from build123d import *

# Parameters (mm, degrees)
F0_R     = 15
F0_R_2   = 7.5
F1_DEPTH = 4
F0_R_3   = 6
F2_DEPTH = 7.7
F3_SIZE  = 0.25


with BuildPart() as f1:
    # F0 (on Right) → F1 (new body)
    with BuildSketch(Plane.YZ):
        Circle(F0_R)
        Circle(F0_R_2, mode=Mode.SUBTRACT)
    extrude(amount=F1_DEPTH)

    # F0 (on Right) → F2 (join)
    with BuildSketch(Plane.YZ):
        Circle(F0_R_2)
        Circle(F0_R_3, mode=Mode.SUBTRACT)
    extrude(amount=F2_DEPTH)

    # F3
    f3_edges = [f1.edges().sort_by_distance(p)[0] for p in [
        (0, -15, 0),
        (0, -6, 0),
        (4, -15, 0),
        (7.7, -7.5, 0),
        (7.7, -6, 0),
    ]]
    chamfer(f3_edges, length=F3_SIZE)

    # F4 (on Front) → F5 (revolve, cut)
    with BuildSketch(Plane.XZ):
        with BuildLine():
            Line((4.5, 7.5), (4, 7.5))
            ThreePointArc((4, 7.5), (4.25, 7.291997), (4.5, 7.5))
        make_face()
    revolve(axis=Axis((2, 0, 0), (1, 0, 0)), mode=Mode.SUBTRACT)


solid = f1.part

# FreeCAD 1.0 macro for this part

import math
import FreeCAD as App
import Part
import Sketcher
from FreeCAD import Vector
Q = App.Units.Quantity


def edges_at(feature, points):
    """Names of the edges that pass closest to the given points."""
    edges = feature.Shape.Edges
    near = lambda p: min(range(len(edges)), key=lambda i: edges[i].distToShape(Part.Vertex(*p))[0])
    return sorted({f"Edge{near(p) + 1}" for p in points})

doc = App.newDocument("Part")
body = doc.addObject("PartDesign::Body", "Body")

# Sketch on YZ plane
sketch1 = body.newObject("Sketcher::SketchObject", "Sketch")
sketch1.AttachmentSupport = (doc.getObject("YZ_Plane"), [""])
sketch1.MapMode = "FlatFace"
sketch1.addGeometry([
    Part.Circle(Vector(0, 0, 0), Vector(0, 0, 1), 15),
    Part.Circle(Vector(0, 0, 0), Vector(0, 0, 1), 8),
], False)
sketch1.addConstraint([
    Sketcher.Constraint("Coincident", 0, 3, -1, 1),
    Sketcher.Constraint("Coincident", 1, 3, -1, 1),
    Sketcher.Constraint("Diameter", 0, Q("30 mm")),
    Sketcher.Constraint("Diameter", 1, Q("15 mm")),
])
pad1 = body.newObject("PartDesign::Pad", "Pad")
pad1.Profile = sketch1
pad1.Length = 4

# Sketch on YZ plane
sketch2 = body.newObject("Sketcher::SketchObject", "Sketch001")
sketch2.AttachmentSupport = (doc.getObject("YZ_Plane"), [""])
sketch2.MapMode = "FlatFace"
sketch2.addGeometry([
    Part.Circle(Vector(0, 0, 0), Vector(0, 0, 1), 8),
    Part.Circle(Vector(0, 0, 0), Vector(0, 0, 1), 6),
], False)
sketch2.addConstraint([
    Sketcher.Constraint("Coincident", 0, 3, -1, 1),
    Sketcher.Constraint("Coincident", 1, 3, -1, 1),
    Sketcher.Constraint("Diameter", 0, Q("15 mm")),
    Sketcher.Constraint("Diameter", 1, Q("12 mm")),
])
pad2 = body.newObject("PartDesign::Pad", "Pad001")
pad2.Profile = sketch2
pad2.Length = 7.7
doc.recompute()

chamfer = body.newObject("PartDesign::Chamfer", "Chamfer")
chamfer.Base = (pad2, edges_at(pad2, [
    (0, -15, 0),
    (0, -6, 0),
    (4, -15, 0),
    (7.7, -7.5, 0),
    (7.7, -6, 0),
]))
chamfer.Size = 0.25

# Sketch on XZ plane
sketch3 = body.newObject("Sketcher::SketchObject", "Sketch002")
sketch3.AttachmentSupport = (doc.getObject("XZ_Plane"), [""])
sketch3.MapMode = "FlatFace"
sketch3.addGeometry([
    Part.LineSegment(Vector(4.5, 7.5, 0), Vector(4, 7.5, 0)),
    Part.ArcOfCircle(Part.Circle(Vector(4.25, 7.55, 0), Vector(0, 0, 1), 0.25), math.radians(-170), math.radians(-10)),
], False)
sketch3.addConstraint([
    Sketcher.Constraint("Coincident", 0, 1, 1, 2),
    Sketcher.Constraint("Coincident", 1, 1, 0, 2),
    Sketcher.Constraint("Horizontal", 0),
    Sketcher.Constraint("DistanceX", 0, 2, 0, 1, Q("0.5 mm")),
    Sketcher.Constraint("DistanceX", -1, 1, 1, 1, Q("4 mm")),
    Sketcher.Constraint("DistanceY", -1, 1, 0, 1, Q("7.5 mm")),
    Sketcher.Constraint("Radius", 1, Q("0.25424 mm")),
])
groove = body.newObject("PartDesign::Groove", "Groove")
groove.Profile = sketch3
groove.ReferenceAxis = (sketch3, ["H_Axis"])
groove.Angle = 360

doc.recompute()
